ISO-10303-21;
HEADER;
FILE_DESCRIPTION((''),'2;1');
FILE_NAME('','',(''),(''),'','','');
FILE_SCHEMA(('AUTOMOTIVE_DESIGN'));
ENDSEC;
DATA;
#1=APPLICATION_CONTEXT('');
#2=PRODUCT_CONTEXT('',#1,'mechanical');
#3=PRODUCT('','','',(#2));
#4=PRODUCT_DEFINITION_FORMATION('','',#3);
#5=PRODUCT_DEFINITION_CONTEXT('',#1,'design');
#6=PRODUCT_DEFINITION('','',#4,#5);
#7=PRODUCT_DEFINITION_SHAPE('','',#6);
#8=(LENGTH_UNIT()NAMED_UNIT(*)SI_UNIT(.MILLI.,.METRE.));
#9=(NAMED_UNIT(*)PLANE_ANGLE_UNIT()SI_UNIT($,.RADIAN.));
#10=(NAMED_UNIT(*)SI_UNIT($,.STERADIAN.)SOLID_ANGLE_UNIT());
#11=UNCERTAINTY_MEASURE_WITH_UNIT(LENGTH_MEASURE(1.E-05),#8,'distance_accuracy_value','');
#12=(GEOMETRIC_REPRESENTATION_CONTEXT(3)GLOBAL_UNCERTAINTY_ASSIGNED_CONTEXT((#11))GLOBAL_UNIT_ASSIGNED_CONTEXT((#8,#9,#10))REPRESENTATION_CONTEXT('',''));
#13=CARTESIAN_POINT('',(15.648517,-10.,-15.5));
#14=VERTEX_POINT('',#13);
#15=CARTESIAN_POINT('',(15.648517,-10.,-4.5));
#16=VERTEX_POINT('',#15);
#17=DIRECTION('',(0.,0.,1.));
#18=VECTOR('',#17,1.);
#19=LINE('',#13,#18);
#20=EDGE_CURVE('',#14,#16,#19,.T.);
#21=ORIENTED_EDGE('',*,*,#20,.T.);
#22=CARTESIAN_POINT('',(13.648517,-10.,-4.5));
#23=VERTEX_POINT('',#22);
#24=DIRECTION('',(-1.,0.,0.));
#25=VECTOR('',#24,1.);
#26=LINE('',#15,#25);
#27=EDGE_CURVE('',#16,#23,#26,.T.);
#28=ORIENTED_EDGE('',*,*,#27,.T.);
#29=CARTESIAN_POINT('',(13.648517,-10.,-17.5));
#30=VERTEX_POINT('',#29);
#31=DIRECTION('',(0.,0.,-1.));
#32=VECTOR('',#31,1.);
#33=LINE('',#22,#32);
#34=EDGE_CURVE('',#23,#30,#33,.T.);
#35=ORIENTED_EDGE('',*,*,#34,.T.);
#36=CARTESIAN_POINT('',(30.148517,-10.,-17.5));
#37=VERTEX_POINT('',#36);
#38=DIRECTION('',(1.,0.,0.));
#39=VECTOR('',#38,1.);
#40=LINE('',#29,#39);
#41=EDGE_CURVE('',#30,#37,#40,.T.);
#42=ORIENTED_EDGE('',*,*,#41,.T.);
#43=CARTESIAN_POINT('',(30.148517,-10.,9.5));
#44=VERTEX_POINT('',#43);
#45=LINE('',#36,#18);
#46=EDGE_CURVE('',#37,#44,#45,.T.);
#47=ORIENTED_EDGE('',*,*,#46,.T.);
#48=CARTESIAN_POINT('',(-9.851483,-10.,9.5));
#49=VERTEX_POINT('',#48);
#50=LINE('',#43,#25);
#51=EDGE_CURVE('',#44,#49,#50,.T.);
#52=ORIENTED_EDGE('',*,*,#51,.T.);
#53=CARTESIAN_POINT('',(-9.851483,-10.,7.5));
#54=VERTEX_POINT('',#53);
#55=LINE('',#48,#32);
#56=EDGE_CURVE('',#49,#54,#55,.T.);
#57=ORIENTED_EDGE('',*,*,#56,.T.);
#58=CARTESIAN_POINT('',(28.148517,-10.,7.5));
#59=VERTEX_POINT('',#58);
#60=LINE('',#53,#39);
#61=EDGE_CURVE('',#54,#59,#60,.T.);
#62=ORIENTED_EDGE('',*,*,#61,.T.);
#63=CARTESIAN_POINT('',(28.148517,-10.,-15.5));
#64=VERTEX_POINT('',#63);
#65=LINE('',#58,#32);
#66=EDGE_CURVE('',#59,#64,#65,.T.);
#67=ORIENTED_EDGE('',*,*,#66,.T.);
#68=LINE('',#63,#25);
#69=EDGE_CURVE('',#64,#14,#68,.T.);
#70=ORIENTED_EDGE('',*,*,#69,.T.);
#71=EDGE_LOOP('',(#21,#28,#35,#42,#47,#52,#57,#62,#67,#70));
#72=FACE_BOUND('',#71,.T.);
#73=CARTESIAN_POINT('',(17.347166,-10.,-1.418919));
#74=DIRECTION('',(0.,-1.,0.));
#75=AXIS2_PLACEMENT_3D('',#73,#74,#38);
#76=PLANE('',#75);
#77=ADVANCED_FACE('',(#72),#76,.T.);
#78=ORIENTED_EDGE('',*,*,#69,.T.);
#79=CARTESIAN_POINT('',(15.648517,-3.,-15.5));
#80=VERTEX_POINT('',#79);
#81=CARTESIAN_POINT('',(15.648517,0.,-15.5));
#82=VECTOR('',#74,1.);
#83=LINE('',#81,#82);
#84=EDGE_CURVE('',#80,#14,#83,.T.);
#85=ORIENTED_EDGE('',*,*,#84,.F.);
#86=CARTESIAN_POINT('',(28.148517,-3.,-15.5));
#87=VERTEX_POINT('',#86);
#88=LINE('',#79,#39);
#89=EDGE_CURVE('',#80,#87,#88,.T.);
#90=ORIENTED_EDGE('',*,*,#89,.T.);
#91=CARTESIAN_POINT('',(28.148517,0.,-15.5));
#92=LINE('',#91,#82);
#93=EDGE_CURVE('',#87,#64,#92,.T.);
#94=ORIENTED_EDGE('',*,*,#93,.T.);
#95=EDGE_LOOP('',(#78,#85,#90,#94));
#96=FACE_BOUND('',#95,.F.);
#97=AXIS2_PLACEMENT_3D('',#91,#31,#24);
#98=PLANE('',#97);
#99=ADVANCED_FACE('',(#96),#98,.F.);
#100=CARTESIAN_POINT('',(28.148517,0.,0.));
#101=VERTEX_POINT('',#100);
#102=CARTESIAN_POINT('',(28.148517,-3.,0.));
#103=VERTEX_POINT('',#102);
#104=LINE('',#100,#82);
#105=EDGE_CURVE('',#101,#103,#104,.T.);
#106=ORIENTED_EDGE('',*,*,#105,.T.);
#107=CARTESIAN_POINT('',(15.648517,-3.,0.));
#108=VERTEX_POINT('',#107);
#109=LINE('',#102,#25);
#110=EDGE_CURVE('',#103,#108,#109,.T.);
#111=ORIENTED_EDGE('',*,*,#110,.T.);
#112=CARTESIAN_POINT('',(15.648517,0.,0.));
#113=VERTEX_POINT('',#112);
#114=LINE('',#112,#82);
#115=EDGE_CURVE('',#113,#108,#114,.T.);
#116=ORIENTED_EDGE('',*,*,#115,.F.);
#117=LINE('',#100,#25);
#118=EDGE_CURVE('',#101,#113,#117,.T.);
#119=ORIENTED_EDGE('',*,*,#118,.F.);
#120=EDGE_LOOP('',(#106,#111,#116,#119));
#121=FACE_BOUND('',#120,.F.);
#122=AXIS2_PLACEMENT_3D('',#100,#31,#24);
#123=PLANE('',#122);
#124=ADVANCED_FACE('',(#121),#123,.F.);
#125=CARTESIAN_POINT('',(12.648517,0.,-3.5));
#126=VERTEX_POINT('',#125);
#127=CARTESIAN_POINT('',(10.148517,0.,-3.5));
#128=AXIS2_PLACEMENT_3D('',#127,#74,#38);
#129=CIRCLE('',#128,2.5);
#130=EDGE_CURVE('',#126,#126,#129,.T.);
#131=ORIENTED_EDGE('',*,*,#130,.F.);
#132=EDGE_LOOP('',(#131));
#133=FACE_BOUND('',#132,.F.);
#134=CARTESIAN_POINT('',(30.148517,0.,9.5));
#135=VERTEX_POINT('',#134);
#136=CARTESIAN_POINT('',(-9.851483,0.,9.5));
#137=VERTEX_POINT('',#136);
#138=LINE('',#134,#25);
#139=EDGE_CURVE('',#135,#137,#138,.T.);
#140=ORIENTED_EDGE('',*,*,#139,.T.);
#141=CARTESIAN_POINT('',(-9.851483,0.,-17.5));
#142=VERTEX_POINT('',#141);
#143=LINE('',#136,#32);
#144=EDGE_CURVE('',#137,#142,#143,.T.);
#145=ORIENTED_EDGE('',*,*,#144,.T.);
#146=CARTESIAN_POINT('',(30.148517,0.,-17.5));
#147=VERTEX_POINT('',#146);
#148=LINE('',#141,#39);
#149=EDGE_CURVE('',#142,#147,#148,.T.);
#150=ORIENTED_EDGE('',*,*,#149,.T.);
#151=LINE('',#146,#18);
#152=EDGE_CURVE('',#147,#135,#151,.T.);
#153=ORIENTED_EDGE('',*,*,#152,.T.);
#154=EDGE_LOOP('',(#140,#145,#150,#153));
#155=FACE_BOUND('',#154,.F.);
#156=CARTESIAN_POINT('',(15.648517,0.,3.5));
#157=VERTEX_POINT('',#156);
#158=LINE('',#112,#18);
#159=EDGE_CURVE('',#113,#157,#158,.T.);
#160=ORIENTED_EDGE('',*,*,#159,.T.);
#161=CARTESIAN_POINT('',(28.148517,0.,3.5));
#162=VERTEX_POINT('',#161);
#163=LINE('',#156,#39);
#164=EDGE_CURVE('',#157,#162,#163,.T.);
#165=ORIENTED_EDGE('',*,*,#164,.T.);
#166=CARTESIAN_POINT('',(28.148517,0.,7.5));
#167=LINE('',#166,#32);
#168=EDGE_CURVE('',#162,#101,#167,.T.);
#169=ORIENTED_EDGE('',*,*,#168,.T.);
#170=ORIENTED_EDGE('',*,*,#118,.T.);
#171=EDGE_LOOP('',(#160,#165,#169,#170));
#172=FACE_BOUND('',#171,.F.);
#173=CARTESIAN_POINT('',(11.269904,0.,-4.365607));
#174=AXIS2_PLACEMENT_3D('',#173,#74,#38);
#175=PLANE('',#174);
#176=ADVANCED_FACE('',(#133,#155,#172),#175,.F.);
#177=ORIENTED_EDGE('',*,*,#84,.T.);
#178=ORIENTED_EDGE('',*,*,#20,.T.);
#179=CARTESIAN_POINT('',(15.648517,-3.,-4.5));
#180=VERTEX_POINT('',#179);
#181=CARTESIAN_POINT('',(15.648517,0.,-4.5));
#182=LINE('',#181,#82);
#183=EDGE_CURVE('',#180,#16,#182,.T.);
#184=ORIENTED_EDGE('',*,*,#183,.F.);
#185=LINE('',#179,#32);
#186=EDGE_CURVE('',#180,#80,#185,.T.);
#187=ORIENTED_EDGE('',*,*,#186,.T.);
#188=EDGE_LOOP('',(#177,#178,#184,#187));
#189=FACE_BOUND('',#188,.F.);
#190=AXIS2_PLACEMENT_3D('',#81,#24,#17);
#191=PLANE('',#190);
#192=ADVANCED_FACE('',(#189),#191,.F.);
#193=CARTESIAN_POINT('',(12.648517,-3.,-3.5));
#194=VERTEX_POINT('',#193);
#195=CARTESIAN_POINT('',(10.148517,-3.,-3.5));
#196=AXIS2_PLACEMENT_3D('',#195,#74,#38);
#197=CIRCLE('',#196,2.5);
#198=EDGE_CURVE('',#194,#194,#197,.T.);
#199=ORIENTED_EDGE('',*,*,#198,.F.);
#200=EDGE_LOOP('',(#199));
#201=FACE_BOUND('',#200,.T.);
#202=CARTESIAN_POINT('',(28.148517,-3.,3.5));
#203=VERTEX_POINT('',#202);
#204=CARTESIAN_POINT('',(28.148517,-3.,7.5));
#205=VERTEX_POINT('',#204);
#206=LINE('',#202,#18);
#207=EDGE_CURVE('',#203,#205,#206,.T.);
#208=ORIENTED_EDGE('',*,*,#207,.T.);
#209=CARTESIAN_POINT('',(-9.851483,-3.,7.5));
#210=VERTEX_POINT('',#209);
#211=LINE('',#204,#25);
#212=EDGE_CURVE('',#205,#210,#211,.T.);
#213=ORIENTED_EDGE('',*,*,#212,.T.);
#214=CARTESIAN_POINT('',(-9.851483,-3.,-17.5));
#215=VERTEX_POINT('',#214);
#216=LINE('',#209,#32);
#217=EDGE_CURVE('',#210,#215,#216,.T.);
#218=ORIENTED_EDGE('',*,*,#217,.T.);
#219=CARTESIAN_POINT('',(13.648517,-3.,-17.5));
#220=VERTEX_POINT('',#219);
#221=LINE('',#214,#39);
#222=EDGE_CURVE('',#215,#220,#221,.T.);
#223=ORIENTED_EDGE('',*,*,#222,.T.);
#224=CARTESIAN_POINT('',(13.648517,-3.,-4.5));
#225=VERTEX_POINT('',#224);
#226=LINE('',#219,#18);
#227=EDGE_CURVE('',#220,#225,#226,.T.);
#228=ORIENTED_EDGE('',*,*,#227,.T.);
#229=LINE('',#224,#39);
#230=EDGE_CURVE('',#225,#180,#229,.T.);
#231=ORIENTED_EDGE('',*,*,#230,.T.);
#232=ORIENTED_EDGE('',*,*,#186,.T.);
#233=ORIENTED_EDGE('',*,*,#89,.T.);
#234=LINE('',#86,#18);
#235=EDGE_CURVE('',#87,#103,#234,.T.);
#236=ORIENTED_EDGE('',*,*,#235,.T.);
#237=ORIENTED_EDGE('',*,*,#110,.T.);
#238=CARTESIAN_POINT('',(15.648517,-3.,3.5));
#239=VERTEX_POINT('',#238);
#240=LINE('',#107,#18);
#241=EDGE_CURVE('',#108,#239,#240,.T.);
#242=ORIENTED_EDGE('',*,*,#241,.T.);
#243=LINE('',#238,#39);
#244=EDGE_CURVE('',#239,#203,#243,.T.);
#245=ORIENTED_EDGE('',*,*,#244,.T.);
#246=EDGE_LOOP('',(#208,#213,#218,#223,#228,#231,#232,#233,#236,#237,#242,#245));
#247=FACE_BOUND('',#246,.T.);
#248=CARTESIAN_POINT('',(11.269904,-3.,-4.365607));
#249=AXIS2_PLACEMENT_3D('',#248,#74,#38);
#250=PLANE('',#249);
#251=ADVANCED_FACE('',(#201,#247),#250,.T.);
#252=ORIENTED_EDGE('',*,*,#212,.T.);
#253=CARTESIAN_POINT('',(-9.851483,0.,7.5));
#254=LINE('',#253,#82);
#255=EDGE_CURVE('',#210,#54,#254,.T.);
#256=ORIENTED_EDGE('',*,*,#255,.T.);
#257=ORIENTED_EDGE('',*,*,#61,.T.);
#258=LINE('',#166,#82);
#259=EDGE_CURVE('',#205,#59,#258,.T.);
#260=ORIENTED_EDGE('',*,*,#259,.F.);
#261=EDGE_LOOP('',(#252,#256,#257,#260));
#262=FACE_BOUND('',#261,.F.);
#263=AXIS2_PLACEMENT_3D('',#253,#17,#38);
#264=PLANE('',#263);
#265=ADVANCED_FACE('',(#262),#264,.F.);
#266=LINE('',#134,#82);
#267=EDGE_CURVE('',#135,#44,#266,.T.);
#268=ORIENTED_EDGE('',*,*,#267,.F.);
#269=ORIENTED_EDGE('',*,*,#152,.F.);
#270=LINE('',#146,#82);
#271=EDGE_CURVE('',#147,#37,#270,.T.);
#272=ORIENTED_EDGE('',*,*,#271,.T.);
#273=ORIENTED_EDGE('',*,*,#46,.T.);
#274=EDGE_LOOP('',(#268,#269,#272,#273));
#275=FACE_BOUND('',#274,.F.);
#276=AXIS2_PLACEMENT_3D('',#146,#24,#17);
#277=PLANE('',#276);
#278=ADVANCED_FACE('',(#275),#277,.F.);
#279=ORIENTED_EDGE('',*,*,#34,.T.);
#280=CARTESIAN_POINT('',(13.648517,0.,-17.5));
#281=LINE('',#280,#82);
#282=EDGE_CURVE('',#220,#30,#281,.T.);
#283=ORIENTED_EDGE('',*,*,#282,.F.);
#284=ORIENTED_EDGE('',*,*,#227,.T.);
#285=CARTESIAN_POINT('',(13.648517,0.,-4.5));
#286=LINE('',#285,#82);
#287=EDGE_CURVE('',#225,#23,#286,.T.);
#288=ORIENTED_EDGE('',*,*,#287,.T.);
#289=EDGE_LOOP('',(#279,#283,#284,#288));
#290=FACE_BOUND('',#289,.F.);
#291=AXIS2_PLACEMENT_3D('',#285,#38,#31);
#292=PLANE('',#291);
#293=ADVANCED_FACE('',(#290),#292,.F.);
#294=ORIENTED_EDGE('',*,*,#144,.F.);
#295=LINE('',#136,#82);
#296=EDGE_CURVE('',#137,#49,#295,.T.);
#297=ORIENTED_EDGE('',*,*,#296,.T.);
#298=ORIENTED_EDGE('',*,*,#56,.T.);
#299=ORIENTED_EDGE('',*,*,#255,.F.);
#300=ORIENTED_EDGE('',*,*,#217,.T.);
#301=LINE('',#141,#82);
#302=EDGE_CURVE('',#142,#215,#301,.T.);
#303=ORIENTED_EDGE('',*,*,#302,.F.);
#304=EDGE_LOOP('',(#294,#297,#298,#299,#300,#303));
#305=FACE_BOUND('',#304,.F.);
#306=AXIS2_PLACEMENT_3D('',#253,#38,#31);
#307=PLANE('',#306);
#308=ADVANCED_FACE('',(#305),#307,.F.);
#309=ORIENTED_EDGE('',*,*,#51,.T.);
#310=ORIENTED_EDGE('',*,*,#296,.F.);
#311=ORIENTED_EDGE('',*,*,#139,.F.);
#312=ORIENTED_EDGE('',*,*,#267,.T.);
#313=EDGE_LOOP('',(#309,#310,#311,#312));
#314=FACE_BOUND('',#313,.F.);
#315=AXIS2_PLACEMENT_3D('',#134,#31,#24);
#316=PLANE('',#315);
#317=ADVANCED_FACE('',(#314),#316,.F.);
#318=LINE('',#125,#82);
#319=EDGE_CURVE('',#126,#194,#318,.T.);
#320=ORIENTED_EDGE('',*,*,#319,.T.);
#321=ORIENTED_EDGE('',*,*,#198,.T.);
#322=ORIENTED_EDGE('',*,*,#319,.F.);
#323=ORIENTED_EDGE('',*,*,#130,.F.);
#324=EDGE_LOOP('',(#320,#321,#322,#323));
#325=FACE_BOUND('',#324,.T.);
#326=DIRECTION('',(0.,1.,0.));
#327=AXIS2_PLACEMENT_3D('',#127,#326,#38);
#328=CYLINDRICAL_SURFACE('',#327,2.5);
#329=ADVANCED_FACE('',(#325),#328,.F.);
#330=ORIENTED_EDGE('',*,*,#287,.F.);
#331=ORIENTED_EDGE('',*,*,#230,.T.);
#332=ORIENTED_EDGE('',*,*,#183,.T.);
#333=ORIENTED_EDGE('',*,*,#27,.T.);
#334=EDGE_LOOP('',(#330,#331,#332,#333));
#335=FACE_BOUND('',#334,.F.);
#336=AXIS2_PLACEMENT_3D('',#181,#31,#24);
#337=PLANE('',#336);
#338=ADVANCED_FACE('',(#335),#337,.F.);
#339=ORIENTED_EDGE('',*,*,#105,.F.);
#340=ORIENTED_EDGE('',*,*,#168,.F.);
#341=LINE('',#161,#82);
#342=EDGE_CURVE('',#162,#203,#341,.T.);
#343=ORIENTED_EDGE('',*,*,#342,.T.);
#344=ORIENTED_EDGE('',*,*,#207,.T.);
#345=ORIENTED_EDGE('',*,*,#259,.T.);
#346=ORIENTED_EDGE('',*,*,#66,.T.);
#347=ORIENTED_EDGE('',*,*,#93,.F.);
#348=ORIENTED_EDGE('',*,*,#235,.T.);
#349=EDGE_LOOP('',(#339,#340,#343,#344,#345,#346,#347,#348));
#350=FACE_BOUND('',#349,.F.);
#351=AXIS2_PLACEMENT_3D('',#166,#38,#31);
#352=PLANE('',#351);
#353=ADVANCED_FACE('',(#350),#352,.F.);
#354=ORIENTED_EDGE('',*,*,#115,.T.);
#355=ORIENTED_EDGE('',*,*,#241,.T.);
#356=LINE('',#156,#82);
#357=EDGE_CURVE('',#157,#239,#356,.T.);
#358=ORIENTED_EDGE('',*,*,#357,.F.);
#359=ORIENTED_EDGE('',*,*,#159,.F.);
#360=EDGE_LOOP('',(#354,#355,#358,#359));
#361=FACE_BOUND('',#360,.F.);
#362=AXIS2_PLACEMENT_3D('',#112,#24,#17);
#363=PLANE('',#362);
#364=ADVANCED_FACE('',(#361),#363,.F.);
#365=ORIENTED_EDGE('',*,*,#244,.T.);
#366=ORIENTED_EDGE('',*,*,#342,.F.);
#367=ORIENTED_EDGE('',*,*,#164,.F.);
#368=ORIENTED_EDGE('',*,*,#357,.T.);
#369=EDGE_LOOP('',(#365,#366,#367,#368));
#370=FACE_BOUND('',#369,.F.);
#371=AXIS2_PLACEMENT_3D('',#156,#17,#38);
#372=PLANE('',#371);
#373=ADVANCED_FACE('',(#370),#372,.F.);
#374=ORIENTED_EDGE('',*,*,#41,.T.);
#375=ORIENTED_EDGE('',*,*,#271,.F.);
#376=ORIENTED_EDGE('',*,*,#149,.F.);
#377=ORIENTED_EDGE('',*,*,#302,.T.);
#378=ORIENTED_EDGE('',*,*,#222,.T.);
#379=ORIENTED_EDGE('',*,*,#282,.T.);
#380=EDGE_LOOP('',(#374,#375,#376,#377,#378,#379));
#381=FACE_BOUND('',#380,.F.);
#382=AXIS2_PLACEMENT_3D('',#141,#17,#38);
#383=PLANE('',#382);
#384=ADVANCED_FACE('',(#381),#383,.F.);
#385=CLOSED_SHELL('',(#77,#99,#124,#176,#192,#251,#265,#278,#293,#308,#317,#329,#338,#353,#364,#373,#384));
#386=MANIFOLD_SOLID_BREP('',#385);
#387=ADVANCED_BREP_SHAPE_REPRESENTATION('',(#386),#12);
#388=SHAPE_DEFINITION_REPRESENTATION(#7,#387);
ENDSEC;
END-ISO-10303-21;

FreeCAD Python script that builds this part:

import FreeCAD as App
import Part
import Sketcher
from FreeCAD import Vector
Q = App.Units.Quantity


def add_polygon(sketch, points):
    """Adds a closed chain of lines whose ends are joined by coincident constraints."""
    first, n = sketch.GeometryCount, len(points)
    for a, b in zip(points, points[1:] + points[:1]):
        sketch.addGeometry(Part.LineSegment(App.Vector(*a, 0), App.Vector(*b, 0)), False)
    for i in range(n):
        sketch.addConstraint(Sketcher.Constraint("Coincident", first + i, 2, first + (i + 1) % n, 1))

doc = App.newDocument("Part")
body = doc.addObject("PartDesign::Body", "Body")

# Sketch on XZ plane
sketch1 = body.newObject("Sketcher::SketchObject", "Sketch")
sketch1.AttachmentSupport = (doc.getObject("XZ_Plane"), [""])
sketch1.MapMode = "FlatFace"
add_polygon(sketch1, [(13.6, -4.5), (13.6, -17.5), (30.1, -17.5), (30.1, 9.5), (-9.9, 9.5), (-9.9, 7.5), (28.1, 7.5), (28.1, -15.5), (15.6, -15.5), (15.6, -4.5)])  # lines 0-9
sketch1.addConstraint([
    Sketcher.Constraint("Vertical", 0),
    Sketcher.Constraint("Horizontal", 1),
    Sketcher.Constraint("Vertical", 2),
    Sketcher.Constraint("Horizontal", 3),
    Sketcher.Constraint("Vertical", 4),
    Sketcher.Constraint("Horizontal", 5),
    Sketcher.Constraint("Vertical", 6),
    Sketcher.Constraint("Horizontal", 7),
    Sketcher.Constraint("Vertical", 8),
    Sketcher.Constraint("Horizontal", 9),
    Sketcher.Constraint("Equal", 9, 4),
    Sketcher.Constraint("DistanceX", 3, 2, 3, 1, Q("40 mm")),
    Sketcher.Constraint("DistanceX", 5, 1, 5, 2, Q("38 mm")),
    Sketcher.Constraint("DistanceX", 9, 2, 9, 1, Q("2 mm")),
    Sketcher.Constraint("DistanceY", 0, 2, 0, 1, Q("13 mm")),
    Sketcher.Constraint("DistanceY", 2, 1, 2, 2, Q("27 mm")),
    Sketcher.Constraint("DistanceY", 6, 2, 6, 1, Q("23 mm")),
    Sketcher.Constraint("DistanceX", 1, 1, 1, 2, Q("16.5 mm")),
    Sketcher.Constraint("DistanceY", 0, 2, -1, 1, Q("17.5 mm")),
    Sketcher.Constraint("DistanceX", -1, 1, 0, 2, Q("13.648517 mm")),
])
pad1 = body.newObject("PartDesign::Pad", "Pad")
pad1.Profile = sketch1
pad1.Length = 10

# Sketch on XZ plane
sketch2 = body.newObject("Sketcher::SketchObject", "Sketch001")
sketch2.AttachmentSupport = (doc.getObject("XZ_Plane"), [""])
sketch2.MapMode = "FlatFace"
add_polygon(sketch2, [(-9.9, 7.5), (-9.9, -17.5), (13.6, -17.5), (13.6, -4.5), (15.6, -4.5), (15.6, -15.5), (28.1, -15.5), (28.1, 0), (15.6, 0), (15.6, 3.5), (28.1, 3.5), (28.1, 7.5)])  # lines 0-11
sketch2.addGeometry(Part.Circle(Vector(10.1, -3.5, 0), Vector(0, 0, 1), 2.5), False)  # 12
sketch2.addConstraint([
    Sketcher.Constraint("Vertical", 0),
    Sketcher.Constraint("Horizontal", 1),
    Sketcher.Constraint("Vertical", 2),
    Sketcher.Constraint("Horizontal", 3),
    Sketcher.Constraint("Vertical", 4),
    Sketcher.Constraint("Horizontal", 5),
    Sketcher.Constraint("Vertical", 6),
    Sketcher.Constraint("Horizontal", 7),
    Sketcher.Constraint("Vertical", 8),
    Sketcher.Constraint("Horizontal", 9),
    Sketcher.Constraint("Vertical", 10),
    Sketcher.Constraint("Horizontal", 11),
    Sketcher.Constraint("PointOnObject", 6, 2, -1),
    Sketcher.Constraint("Vertical", 4, 2, 7, 2),
    Sketcher.Constraint("Vertical", 6, 2, 9, 2),
    Sketcher.Constraint("Diameter", 12, Q("5 mm")),
    Sketcher.Constraint("DistanceX", 3, 1, 3, 2, Q("2 mm")),
    Sketcher.Constraint("DistanceX", 11, 2, 11, 1, Q("38 mm")),
    Sketcher.Constraint("DistanceY", 0, 2, 0, 1, Q("25 mm")),
    Sketcher.Constraint("DistanceY", 2, 1, 2, 2, Q("13 mm")),
    Sketcher.Constraint("DistanceY", 4, 2, 4, 1, Q("11 mm")),
    Sketcher.Constraint("DistanceY", 10, 1, 10, 2, Q("4 mm")),
    Sketcher.Constraint("DistanceX", 1, 1, 1, 2, Q("23.5 mm")),
    Sketcher.Constraint("DistanceY", 6, 1, 6, 2, Q("15.5 mm")),
    Sketcher.Constraint("DistanceX", 0, 2, 12, 3, Q("20 mm")),
    Sketcher.Constraint("DistanceY", 0, 2, 12, 3, Q("14 mm")),
    Sketcher.Constraint("DistanceX", -1, 1, 12, 3, Q("10.148517 mm")),
])
pad2 = body.newObject("PartDesign::Pad", "Pad001")
pad2.Profile = sketch2
pad2.Length = 3

doc.recompute()
